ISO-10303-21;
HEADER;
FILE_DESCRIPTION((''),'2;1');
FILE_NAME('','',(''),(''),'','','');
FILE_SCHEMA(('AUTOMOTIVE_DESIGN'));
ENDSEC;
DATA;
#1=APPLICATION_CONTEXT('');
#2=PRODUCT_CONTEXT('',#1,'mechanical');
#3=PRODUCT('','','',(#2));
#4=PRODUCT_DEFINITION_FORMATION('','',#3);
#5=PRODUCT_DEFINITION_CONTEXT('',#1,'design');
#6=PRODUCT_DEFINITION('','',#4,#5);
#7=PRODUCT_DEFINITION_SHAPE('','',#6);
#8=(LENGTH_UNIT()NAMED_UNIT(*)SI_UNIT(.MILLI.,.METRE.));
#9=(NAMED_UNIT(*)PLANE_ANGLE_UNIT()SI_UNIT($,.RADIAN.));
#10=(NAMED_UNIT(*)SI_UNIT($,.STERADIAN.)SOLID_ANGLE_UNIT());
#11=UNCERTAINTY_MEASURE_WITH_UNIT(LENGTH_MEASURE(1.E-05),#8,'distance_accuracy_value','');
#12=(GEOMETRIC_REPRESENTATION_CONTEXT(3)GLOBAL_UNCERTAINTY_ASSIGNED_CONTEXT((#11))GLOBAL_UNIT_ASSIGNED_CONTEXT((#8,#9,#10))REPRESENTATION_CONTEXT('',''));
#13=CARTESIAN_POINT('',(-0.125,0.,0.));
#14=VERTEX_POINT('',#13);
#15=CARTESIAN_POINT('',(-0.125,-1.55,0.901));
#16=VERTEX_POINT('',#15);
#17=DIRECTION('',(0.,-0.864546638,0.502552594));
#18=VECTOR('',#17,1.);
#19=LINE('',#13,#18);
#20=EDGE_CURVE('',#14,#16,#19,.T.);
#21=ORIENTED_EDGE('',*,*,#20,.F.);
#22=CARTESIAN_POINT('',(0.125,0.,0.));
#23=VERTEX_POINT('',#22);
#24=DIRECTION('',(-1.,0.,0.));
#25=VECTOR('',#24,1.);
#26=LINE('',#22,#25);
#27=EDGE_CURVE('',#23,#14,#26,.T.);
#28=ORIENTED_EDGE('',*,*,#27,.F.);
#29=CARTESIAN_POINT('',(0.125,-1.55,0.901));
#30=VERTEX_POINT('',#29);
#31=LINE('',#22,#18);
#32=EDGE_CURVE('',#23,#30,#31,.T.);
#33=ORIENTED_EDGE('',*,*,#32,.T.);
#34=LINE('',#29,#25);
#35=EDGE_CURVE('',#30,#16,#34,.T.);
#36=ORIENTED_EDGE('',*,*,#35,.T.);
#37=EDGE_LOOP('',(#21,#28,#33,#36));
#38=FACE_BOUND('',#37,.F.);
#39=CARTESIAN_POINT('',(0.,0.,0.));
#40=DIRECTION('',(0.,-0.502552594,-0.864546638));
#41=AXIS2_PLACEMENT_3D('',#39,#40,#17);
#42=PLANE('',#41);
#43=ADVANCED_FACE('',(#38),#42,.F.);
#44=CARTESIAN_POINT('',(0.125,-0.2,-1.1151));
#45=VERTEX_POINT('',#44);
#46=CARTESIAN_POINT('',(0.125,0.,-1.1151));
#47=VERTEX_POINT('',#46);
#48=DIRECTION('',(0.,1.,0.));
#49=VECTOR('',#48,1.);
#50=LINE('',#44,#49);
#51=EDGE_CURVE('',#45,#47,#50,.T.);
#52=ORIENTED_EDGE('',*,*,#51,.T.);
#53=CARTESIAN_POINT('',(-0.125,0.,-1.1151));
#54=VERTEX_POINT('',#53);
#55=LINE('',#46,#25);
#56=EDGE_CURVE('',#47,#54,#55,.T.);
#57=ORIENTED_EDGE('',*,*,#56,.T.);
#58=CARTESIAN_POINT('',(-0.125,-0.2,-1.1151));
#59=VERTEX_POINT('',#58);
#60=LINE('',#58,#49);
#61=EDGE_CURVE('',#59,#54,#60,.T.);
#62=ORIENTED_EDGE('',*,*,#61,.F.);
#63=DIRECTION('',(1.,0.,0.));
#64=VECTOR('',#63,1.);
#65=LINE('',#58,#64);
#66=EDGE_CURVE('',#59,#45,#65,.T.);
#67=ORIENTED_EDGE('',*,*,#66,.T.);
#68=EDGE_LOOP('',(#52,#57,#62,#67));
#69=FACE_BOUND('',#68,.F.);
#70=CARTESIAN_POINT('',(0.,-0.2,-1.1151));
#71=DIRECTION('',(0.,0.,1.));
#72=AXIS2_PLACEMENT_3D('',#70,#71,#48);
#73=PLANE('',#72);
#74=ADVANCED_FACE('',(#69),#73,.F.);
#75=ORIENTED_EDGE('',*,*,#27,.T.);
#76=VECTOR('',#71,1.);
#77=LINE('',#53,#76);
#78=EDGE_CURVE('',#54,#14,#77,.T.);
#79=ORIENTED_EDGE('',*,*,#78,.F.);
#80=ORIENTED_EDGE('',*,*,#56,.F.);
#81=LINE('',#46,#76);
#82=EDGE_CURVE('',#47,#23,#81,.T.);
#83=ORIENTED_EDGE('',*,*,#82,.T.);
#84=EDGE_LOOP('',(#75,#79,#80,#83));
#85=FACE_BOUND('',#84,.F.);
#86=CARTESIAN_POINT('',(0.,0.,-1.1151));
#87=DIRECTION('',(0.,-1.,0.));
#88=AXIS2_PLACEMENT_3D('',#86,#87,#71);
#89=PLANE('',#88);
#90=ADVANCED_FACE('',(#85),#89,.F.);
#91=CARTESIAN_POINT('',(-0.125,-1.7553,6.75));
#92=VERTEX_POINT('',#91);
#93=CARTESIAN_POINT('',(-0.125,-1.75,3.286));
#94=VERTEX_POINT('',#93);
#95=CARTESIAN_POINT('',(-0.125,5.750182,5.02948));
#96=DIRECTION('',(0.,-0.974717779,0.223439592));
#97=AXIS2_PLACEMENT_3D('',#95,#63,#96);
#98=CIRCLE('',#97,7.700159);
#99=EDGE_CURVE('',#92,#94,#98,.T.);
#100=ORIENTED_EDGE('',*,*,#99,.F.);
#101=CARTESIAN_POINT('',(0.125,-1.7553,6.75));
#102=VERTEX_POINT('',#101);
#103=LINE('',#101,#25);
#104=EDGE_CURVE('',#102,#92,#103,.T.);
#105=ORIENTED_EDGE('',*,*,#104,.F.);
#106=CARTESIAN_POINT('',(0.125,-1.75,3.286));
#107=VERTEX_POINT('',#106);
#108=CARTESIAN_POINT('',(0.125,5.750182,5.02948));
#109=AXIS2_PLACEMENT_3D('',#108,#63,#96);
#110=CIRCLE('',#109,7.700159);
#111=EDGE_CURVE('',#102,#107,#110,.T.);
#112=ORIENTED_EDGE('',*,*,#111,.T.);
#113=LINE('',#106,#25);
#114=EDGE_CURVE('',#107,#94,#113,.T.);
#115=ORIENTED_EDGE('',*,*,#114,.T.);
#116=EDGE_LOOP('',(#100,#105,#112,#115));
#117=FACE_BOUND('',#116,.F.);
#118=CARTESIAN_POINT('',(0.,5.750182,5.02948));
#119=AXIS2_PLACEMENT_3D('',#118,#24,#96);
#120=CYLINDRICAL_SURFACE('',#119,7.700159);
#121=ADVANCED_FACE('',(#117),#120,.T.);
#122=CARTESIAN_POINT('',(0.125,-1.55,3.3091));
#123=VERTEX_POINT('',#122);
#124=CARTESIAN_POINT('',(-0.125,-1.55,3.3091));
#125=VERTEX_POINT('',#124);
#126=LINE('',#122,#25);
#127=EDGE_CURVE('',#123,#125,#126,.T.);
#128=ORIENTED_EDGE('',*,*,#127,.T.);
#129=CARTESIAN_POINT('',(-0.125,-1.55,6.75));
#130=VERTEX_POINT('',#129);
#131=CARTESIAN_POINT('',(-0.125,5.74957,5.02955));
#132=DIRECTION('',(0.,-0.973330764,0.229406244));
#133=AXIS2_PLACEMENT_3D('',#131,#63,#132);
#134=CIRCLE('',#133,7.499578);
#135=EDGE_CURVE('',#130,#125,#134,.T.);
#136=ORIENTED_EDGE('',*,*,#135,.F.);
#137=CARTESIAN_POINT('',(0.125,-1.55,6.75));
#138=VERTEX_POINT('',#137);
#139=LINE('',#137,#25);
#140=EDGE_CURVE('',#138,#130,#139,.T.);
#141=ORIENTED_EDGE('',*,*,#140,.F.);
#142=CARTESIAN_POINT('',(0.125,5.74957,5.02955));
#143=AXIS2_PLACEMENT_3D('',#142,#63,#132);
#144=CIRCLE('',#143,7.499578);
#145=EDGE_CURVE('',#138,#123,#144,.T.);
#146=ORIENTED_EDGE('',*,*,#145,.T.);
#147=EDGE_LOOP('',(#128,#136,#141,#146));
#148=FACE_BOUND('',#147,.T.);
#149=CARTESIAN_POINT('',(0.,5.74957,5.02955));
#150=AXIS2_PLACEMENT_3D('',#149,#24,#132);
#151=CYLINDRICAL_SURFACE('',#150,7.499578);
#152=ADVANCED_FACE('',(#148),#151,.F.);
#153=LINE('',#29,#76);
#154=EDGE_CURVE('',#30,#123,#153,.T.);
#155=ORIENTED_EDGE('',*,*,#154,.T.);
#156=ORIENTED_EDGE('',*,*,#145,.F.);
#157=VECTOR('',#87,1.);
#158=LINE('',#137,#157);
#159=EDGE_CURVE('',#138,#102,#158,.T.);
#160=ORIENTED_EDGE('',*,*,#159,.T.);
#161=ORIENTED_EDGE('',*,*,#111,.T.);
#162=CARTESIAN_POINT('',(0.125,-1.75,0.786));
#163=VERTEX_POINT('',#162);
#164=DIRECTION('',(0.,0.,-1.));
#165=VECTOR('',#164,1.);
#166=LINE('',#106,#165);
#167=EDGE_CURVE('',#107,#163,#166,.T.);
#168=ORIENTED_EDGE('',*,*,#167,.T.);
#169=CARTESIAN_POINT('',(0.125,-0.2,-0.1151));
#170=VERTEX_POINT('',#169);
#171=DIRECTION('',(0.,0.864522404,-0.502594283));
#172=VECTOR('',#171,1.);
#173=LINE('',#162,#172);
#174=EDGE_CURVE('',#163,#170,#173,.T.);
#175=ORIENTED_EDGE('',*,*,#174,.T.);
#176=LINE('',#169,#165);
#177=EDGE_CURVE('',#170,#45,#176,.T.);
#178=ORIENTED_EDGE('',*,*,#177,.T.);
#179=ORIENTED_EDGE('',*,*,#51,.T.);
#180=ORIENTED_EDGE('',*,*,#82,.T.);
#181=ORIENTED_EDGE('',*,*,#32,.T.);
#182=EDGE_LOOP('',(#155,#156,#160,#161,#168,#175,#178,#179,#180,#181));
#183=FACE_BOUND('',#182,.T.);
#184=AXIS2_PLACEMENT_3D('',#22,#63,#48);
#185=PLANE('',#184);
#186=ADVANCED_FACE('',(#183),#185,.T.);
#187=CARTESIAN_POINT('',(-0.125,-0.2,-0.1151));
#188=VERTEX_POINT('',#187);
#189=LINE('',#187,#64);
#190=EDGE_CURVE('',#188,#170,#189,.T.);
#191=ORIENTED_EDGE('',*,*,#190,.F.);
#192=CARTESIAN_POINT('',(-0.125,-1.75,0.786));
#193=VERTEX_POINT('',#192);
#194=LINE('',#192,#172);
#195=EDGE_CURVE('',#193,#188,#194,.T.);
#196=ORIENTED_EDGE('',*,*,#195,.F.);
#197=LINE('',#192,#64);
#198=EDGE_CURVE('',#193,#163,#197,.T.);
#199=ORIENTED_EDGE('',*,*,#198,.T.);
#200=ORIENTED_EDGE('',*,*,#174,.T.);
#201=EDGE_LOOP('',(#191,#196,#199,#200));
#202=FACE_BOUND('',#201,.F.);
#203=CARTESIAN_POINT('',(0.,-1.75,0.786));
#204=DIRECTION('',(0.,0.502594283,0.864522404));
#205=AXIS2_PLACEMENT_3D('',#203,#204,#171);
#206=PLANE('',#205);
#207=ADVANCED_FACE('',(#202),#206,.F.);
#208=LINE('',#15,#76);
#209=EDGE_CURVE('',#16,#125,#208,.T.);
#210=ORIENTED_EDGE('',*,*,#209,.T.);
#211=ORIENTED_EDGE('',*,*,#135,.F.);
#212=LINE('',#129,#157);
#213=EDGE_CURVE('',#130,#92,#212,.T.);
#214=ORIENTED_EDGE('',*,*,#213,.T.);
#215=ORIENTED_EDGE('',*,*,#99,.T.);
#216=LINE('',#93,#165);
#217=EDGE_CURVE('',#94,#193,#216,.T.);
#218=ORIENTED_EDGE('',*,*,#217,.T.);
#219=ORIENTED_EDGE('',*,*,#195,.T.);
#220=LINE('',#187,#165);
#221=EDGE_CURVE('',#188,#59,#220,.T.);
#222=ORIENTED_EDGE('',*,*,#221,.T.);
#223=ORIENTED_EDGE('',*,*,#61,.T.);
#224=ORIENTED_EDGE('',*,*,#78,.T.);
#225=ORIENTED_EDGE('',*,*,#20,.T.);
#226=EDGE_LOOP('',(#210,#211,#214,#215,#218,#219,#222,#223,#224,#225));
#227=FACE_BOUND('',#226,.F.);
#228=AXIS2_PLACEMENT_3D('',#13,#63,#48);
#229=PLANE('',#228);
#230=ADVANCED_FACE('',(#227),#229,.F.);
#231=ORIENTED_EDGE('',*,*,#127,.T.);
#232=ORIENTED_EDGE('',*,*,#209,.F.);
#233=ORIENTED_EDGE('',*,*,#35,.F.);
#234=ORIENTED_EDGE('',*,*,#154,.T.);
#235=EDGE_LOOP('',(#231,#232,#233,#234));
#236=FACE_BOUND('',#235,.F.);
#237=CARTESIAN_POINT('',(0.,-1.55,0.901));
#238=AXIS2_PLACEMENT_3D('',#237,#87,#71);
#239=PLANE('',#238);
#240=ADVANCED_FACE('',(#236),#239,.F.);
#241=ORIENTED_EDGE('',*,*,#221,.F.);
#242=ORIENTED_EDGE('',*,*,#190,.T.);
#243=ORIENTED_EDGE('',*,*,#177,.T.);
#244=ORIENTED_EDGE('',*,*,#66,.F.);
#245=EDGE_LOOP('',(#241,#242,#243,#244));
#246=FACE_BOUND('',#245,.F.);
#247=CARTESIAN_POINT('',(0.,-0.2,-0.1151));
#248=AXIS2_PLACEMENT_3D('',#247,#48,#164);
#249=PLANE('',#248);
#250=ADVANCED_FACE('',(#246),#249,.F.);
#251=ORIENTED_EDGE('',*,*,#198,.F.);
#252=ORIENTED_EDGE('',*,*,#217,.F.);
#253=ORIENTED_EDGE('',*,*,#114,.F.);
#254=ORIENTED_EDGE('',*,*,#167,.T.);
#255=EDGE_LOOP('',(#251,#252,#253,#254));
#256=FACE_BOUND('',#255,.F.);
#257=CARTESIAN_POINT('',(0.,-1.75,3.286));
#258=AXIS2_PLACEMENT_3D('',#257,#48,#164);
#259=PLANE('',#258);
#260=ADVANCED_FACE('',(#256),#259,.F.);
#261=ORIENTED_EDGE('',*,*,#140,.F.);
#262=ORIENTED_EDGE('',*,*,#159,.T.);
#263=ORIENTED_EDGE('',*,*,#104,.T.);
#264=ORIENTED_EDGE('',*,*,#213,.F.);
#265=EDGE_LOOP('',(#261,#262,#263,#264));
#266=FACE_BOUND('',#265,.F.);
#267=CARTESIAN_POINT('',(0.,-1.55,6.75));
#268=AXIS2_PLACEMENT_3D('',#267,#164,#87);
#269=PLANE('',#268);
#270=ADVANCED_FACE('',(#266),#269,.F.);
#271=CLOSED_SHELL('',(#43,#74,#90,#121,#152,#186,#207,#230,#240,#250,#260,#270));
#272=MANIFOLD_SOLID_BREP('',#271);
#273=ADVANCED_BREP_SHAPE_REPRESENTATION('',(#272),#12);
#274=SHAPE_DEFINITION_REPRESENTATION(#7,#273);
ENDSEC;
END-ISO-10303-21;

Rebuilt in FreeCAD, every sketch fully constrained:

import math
import FreeCAD as App
import Part
import Sketcher
Q = App.Units.Quantity

doc = App.newDocument("Part")
body = doc.addObject("PartDesign::Body", "Body")

# Sketch on YZ plane
sketch1 = body.newObject("Sketcher::SketchObject", "Sketch")
sketch1.AttachmentSupport = (doc.getObject("YZ_Plane"), [""])
sketch1.MapMode = "FlatFace"
sketch1.addGeometry(Part.LineSegment(App.Vector(-1.75, 3.29, 0), App.Vector(-1.75, 0.79, 0)), False)
sketch1.addGeometry(Part.LineSegment(App.Vector(-1.75, 0.79, 0), App.Vector(-0.2, -0.12, 0)), False)
sketch1.addGeometry(Part.LineSegment(App.Vector(-0.2, -0.12, 0), App.Vector(-0.2, -1.12, 0)), False)
sketch1.addGeometry(Part.LineSegment(App.Vector(-0.2, -1.12, 0), App.Vector(0, -1.12, 0)), False)
sketch1.addGeometry(Part.LineSegment(App.Vector(0, -1.12, 0), App.Vector(0, 0, 0)), False)
sketch1.addGeometry(Part.LineSegment(App.Vector(0, 0, 0), App.Vector(-1.55, 0.9, 0)), False)
sketch1.addGeometry(Part.LineSegment(App.Vector(-1.55, 0.9, 0), App.Vector(-1.55, 3.31, 0)), False)
sketch1.addGeometry(Part.ArcOfCircle(Part.Circle(App.Vector(5.75, 5.03, 0), App.Vector(0, 0, 1), 7.5), math.radians(167), math.radians(193)), False)
sketch1.addGeometry(Part.LineSegment(App.Vector(-1.55, 6.75, 0), App.Vector(-1.76, 6.75, 0)), False)
sketch1.addGeometry(Part.ArcOfCircle(Part.Circle(App.Vector(5.75, 5.03, 0), App.Vector(0, 0, 1), 7.7), math.radians(167), math.radians(193)), False)
sketch1.addConstraint(Sketcher.Constraint("Coincident", 0, 2, 1, 1))
sketch1.addConstraint(Sketcher.Constraint("Coincident", 1, 2, 2, 1))
sketch1.addConstraint(Sketcher.Constraint("Coincident", 2, 2, 3, 1))
sketch1.addConstraint(Sketcher.Constraint("Coincident", 3, 2, 4, 1))
sketch1.addConstraint(Sketcher.Constraint("Coincident", 4, 2, 5, 1))
sketch1.addConstraint(Sketcher.Constraint("Coincident", 5, 2, 6, 1))
sketch1.addConstraint(Sketcher.Constraint("Coincident", 6, 2, 7, 2))
sketch1.addConstraint(Sketcher.Constraint("Coincident", 7, 1, 8, 1))
sketch1.addConstraint(Sketcher.Constraint("Coincident", 8, 2, 9, 1))
sketch1.addConstraint(Sketcher.Constraint("Coincident", 9, 2, 0, 1))
sketch1.addConstraint(Sketcher.Constraint("Vertical", 0))
sketch1.addConstraint(Sketcher.Constraint("Vertical", 2))
sketch1.addConstraint(Sketcher.Constraint("Horizontal", 3))
sketch1.addConstraint(Sketcher.Constraint("Vertical", 4))
sketch1.addConstraint(Sketcher.Constraint("Vertical", 6))
sketch1.addConstraint(Sketcher.Constraint("Horizontal", 8))
sketch1.addConstraint(Sketcher.Constraint("Coincident", 4, 2, -1, 1))
sketch1.addConstraint(Sketcher.Constraint("Coincident", 9, 3, 7, 3))
sketch1.addConstraint(Sketcher.Constraint("Parallel", 1, 5))
sketch1.addConstraint(Sketcher.Constraint("Vertical", 6, 2, 7, 1))
sketch1.addConstraint(Sketcher.Constraint("Equal", 1, 5))
sketch1.addConstraint(Sketcher.Constraint("Radius", 7, Q("7.5 mm")))
sketch1.addConstraint(Sketcher.Constraint("DistanceY", 2, 2, 2, 1, Q("1 mm")))
sketch1.addConstraint(Sketcher.Constraint("DistanceX", 3, 1, 3, 2, Q("0.2 mm")))
sketch1.addConstraint(Sketcher.Constraint("DistanceY", 0, 2, 0, 1, Q("2.5 mm")))
sketch1.addConstraint(Sketcher.Constraint("Radius", 9, Q("7.7 mm")))
sketch1.addConstraint(Sketcher.Constraint("DistanceX", 0, 2, 7, 3, Q("7.5 mm")))
sketch1.addConstraint(Sketcher.Constraint("DistanceY", -1, 1, 7, 1, Q("6.75 mm")))
sketch1.addConstraint(Sketcher.Constraint("Angle", 5, Q("149.831 deg")))
sketch1.addConstraint(Sketcher.Constraint("DistanceY", 4, 1, 4, 2, Q("1.115 mm")))
pad1 = body.newObject("PartDesign::Pad", "Pad")
pad1.Profile = sketch1
pad1.Length = 0.25
pad1.Midplane = True

doc.recompute()
